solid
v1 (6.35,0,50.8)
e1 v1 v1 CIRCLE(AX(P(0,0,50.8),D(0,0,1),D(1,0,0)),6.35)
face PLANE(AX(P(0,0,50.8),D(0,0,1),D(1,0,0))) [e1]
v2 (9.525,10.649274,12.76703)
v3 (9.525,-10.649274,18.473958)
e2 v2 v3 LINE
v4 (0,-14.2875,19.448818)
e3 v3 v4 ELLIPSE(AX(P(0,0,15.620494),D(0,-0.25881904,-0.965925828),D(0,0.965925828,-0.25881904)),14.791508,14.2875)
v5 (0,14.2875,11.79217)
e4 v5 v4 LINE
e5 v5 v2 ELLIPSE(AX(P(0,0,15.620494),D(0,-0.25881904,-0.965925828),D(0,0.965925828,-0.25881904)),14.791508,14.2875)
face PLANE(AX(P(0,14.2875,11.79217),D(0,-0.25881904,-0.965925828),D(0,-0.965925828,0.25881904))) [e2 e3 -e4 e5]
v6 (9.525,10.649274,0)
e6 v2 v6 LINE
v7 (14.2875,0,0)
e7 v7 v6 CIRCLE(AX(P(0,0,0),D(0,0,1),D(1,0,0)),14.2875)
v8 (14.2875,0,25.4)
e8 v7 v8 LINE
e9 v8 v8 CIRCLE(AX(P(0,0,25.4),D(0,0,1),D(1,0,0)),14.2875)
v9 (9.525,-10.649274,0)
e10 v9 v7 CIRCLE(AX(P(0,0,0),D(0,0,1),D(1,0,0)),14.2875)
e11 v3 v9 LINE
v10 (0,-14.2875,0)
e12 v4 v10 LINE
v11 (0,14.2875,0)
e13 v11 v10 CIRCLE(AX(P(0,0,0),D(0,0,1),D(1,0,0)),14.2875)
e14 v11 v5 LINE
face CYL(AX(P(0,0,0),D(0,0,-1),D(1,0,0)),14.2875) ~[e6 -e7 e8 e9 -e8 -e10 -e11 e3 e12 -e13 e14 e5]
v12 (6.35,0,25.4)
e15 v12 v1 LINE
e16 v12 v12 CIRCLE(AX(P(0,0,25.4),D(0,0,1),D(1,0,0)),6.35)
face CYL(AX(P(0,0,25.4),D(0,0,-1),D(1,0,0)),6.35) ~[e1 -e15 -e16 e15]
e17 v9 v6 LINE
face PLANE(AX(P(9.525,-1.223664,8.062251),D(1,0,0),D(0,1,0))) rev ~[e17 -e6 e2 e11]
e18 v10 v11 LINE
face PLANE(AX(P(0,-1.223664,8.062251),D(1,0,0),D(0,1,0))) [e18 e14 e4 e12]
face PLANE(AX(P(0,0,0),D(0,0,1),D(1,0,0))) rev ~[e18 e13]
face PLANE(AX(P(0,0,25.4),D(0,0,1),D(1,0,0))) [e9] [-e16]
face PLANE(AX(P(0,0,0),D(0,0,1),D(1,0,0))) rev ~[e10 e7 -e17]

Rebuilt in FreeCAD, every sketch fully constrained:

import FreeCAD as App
import Part
import Sketcher
Q = App.Units.Quantity

doc = App.newDocument("Part")
params = doc.addObject("Spreadsheet::Sheet", "Params")
for row, (alias, value) in enumerate([
    ("sketch1_diameter", "1.125 in"),
    ("pad1_length", "1 in"),
    ("sketch2_diameter", "0.5 in"),
    ("pad2_length", "1 in"),
    ("sketch3_width", "1.125 in"),
    ("pocket1_length", "0.375 in"),
], start=1):
    params.set(f"A{row}", alias)
    params.set(f"B{row}", "=" + value)
    params.setAlias(f"B{row}", alias)

body = doc.addObject("PartDesign::Body", "Body")

# Sketch on XY plane
sketch1 = body.newObject("Sketcher::SketchObject", "Sketch")
sketch1.AttachmentSupport = (doc.getObject("XY_Plane"), [""])
sketch1.MapMode = "FlatFace"
sketch1.addGeometry(Part.Circle(App.Vector(0, 0, 0), App.Vector(0, 0, 1), 14), False)
sketch1.addConstraint([
    Sketcher.Constraint("Coincident", 0, 3, -1, 1),
    Sketcher.Constraint("Diameter", 0, Q("1.125 in")),
])
sketch1.setExpression("Constraints[1]", "Params.sketch1_diameter")
pad1 = body.newObject("PartDesign::Pad", "Pad")
pad1.Profile = sketch1
pad1.setExpression("Length", "Params.pad1_length")

# Sketch on XY plane
sketch2 = body.newObject("Sketcher::SketchObject", "Sketch001")
sketch2.AttachmentSupport = (doc.getObject("XY_Plane"), [""])
sketch2.MapMode = "FlatFace"
sketch2.AttachmentOffset = App.Placement(App.Vector(0, 0, 1 * 25.4), App.Rotation())
sketch2.addGeometry(Part.Circle(App.Vector(0, 0, 0), App.Vector(0, 0, 1), 6), False)
sketch2.addConstraint([
    Sketcher.Constraint("Coincident", 0, 3, -1, 1),
    Sketcher.Constraint("Diameter", 0, Q("0.5 in")),
])
sketch2.setExpression("Constraints[1]", "Params.sketch2_diameter")
pad2 = body.newObject("PartDesign::Pad", "Pad001")
pad2.Profile = sketch2
pad2.setExpression("Length", "Params.pad2_length")

# Sketch on YZ plane
sketch3 = body.newObject("Sketcher::SketchObject", "Sketch002")
sketch3.AttachmentSupport = (doc.getObject("YZ_Plane"), [""])
sketch3.MapMode = "FlatFace"
sketch3.addGeometry([
    Part.LineSegment(App.Vector(-14, 0, 0), App.Vector(14, 0, 0)),
    Part.LineSegment(App.Vector(14, 0, 0), App.Vector(14, 12, 0)),
    Part.LineSegment(App.Vector(14, 12, 0), App.Vector(-14, 19, 0)),
    Part.LineSegment(App.Vector(-14, 19, 0), App.Vector(-14, 0, 0)),
], False)
sketch3.addConstraint([
    Sketcher.Constraint("Coincident", 0, 2, 1, 1),
    Sketcher.Constraint("Coincident", 1, 2, 2, 1),
    Sketcher.Constraint("Coincident", 2, 2, 3, 1),
    Sketcher.Constraint("Coincident", 3, 2, 0, 1),
    Sketcher.Constraint("Horizontal", 0),
    Sketcher.Constraint("Vertical", 1),
    Sketcher.Constraint("Vertical", 3),
    Sketcher.Constraint("Symmetric", 0, 2, 3, 2, -1, 1),
    Sketcher.Constraint("Angle", 2, Q("165 deg")),
    Sketcher.Constraint("DistanceX", 0, 1, 0, 2, Q("1.125 in")),
    Sketcher.Constraint("DistanceY", 1, 1, 1, 2, 11.79217),
])
sketch3.setExpression("Constraints[9]", "Params.sketch3_width")
pocket1 = body.newObject("PartDesign::Pocket", "Pocket")
pocket1.Profile = sketch3
pocket1.setExpression("Length", "Params.pocket1_length")
pocket1.Reversed = True

doc.recompute()
